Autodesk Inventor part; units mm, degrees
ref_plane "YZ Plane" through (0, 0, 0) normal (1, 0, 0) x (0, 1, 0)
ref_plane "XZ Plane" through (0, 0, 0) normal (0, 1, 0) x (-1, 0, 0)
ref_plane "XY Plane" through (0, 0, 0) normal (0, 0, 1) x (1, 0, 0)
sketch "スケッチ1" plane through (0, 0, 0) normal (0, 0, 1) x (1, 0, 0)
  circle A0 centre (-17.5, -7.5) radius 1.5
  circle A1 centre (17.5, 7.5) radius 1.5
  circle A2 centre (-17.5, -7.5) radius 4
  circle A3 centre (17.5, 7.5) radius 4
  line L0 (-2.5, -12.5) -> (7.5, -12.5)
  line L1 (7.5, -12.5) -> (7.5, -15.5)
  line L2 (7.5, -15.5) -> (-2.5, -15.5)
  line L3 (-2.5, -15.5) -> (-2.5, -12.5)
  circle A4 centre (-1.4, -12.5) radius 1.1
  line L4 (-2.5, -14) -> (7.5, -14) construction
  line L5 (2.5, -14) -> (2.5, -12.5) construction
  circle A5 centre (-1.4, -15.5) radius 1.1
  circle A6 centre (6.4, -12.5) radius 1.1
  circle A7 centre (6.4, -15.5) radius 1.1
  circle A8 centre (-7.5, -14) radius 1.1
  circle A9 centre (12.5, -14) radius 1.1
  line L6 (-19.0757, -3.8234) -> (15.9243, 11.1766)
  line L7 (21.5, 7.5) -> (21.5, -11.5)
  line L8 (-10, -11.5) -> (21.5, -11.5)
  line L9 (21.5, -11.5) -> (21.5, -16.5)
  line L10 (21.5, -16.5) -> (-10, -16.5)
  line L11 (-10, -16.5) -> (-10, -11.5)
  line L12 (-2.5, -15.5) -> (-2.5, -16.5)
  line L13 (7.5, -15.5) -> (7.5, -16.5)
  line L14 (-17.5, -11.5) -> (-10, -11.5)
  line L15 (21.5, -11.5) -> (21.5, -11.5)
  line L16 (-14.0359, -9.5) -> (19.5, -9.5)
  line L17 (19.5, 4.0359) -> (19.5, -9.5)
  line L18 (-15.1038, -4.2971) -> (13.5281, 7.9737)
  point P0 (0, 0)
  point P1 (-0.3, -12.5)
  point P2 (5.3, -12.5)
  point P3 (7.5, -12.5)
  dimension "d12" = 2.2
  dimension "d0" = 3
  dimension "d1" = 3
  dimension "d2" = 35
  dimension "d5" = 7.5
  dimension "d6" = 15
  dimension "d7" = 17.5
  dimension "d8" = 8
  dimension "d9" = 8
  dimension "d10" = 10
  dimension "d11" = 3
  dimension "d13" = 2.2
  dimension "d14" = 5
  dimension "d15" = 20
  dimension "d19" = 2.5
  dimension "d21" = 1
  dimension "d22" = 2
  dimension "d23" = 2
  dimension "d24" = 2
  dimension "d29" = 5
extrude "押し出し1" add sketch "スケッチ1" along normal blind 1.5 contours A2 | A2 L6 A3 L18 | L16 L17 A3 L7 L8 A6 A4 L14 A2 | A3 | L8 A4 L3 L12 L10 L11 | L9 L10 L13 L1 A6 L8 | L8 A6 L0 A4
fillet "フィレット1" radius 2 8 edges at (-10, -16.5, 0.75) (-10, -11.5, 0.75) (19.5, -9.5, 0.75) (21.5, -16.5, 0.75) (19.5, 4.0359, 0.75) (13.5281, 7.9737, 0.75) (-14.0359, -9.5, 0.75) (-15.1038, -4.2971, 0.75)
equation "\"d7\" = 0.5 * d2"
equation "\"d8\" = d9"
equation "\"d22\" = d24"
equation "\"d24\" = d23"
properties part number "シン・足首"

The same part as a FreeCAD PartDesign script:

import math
import FreeCAD as App
import Part
import Sketcher
Q = App.Units.Quantity


def edges_at(feature, points):
    """Names of the edges that pass closest to the given points."""
    edges = feature.Shape.Edges
    near = lambda p: min(range(len(edges)), key=lambda i: edges[i].distToShape(Part.Vertex(*p))[0])
    return sorted({f"Edge{near(p) + 1}" for p in points})

doc = App.newDocument("Part")
body = doc.addObject("PartDesign::Body", "Body")

sketch1 = body.newObject("Sketcher::SketchObject", "Sketch")
sketch1.AttachmentSupport = (doc.getObject("XY_Plane"), [""])
sketch1.MapMode = "FlatFace"
sketch1.addGeometry(Part.ArcOfCircle(Part.Circle(App.Vector(-17.5, -7.5, 0), App.Vector(0, 0, 1), 4), math.radians(113), math.radians(270)), False)
sketch1.addGeometry(Part.LineSegment(App.Vector(-17.5, -11.5, 0), App.Vector(-10, -11.5, 0)), False)
sketch1.addGeometry(Part.LineSegment(App.Vector(-10, -11.5, 0), App.Vector(-10, -16.5, 0)), False)
sketch1.addGeometry(Part.LineSegment(App.Vector(-10, -16.5, 0), App.Vector(-2.5, -16.5, 0)), False)
sketch1.addGeometry(Part.LineSegment(App.Vector(-2.5, -16.5, 0), App.Vector(-2.5, -12.5, 0)), False)
sketch1.addGeometry(Part.ArcOfCircle(Part.Circle(App.Vector(-1.4, -12.5, 0), App.Vector(0, 0, 1), 1.1), math.radians(0), math.radians(180)), False)
sketch1.addGeometry(Part.LineSegment(App.Vector(-0.3, -12.5, 0), App.Vector(5.3, -12.5, 0)), False)
sketch1.addGeometry(Part.ArcOfCircle(Part.Circle(App.Vector(6.4, -12.5, 0), App.Vector(0, 0, 1), 1.1), math.radians(0), math.radians(180)), False)
sketch1.addGeometry(Part.LineSegment(App.Vector(7.5, -12.5, 0), App.Vector(7.5, -16.5, 0)), False)
sketch1.addGeometry(Part.LineSegment(App.Vector(7.5, -16.5, 0), App.Vector(21.5, -16.5, 0)), False)
sketch1.addGeometry(Part.LineSegment(App.Vector(21.5, -16.5, 0), App.Vector(21.5, 7.5, 0)), False)
sketch1.addGeometry(Part.ArcOfCircle(Part.Circle(App.Vector(17.5, 7.5, 0), App.Vector(0, 0, 1), 4), math.radians(0), math.radians(113)), False)
sketch1.addGeometry(Part.LineSegment(App.Vector(15.9, 11.2, 0), App.Vector(-19.1, -3.8, 0)), False)
sketch1.addGeometry(Part.ArcOfCircle(Part.Circle(App.Vector(-17.5, -7.5, 0), App.Vector(0, 0, 1), 4), math.radians(-30), math.radians(53)), False)
sketch1.addGeometry(Part.LineSegment(App.Vector(-15.1, -4.3, 0), App.Vector(13.5, 8, 0)), False)
sketch1.addGeometry(Part.ArcOfCircle(Part.Circle(App.Vector(17.5, 7.5, 0), App.Vector(0, 0, 1), 4), math.radians(173), math.radians(300)), False)
sketch1.addGeometry(Part.LineSegment(App.Vector(19.5, 4, 0), App.Vector(19.5, -9.5, 0)), False)
sketch1.addGeometry(Part.LineSegment(App.Vector(19.5, -9.5, 0), App.Vector(-14, -9.5, 0)), False)
sketch1.addGeometry(Part.Circle(App.Vector(-17.5, -7.5, 0), App.Vector(0, 0, 1), 1.5), False)
sketch1.addGeometry(Part.Circle(App.Vector(17.5, 7.5, 0), App.Vector(0, 0, 1), 1.5), False)
sketch1.addGeometry(Part.Circle(App.Vector(12.5, -14, 0), App.Vector(0, 0, 1), 1.1), False)
sketch1.addGeometry(Part.Circle(App.Vector(-7.5, -14, 0), App.Vector(0, 0, 1), 1.1), False)
sketch1.addConstraint(Sketcher.Constraint("Tangent", 0, 2, 1, 1))
sketch1.addConstraint(Sketcher.Constraint("Coincident", 1, 2, 2, 1))
sketch1.addConstraint(Sketcher.Constraint("Coincident", 2, 2, 3, 1))
sketch1.addConstraint(Sketcher.Constraint("Coincident", 3, 2, 4, 1))
sketch1.addConstraint(Sketcher.Constraint("Tangent", 4, 2, 5, 2))
sketch1.addConstraint(Sketcher.Constraint("Coincident", 5, 1, 6, 1))
sketch1.addConstraint(Sketcher.Constraint("Coincident", 6, 2, 7, 2))
sketch1.addConstraint(Sketcher.Constraint("Tangent", 7, 1, 8, 1))
sketch1.addConstraint(Sketcher.Constraint("Coincident", 8, 2, 9, 1))
sketch1.addConstraint(Sketcher.Constraint("Coincident", 9, 2, 10, 1))
sketch1.addConstraint(Sketcher.Constraint("Tangent", 10, 2, 11, 1))
sketch1.addConstraint(Sketcher.Constraint("Tangent", 11, 2, 12, 1))
sketch1.addConstraint(Sketcher.Constraint("Tangent", 12, 2, 0, 1))
sketch1.addConstraint(Sketcher.Constraint("Coincident", 13, 2, 14, 1))
sketch1.addConstraint(Sketcher.Constraint("Coincident", 14, 2, 15, 1))
sketch1.addConstraint(Sketcher.Constraint("Coincident", 15, 2, 16, 1))
sketch1.addConstraint(Sketcher.Constraint("Coincident", 16, 2, 17, 1))
sketch1.addConstraint(Sketcher.Constraint("Coincident", 17, 2, 13, 1))
sketch1.addConstraint(Sketcher.Constraint("Horizontal", 1))
sketch1.addConstraint(Sketcher.Constraint("Vertical", 2))
sketch1.addConstraint(Sketcher.Constraint("Horizontal", 3))
sketch1.addConstraint(Sketcher.Constraint("Vertical", 4))
sketch1.addConstraint(Sketcher.Constraint("Horizontal", 6))
sketch1.addConstraint(Sketcher.Constraint("Vertical", 8))
sketch1.addConstraint(Sketcher.Constraint("Horizontal", 9))
sketch1.addConstraint(Sketcher.Constraint("Vertical", 10))
sketch1.addConstraint(Sketcher.Constraint("Vertical", 16))
sketch1.addConstraint(Sketcher.Constraint("Horizontal", 17))
sketch1.addConstraint(Sketcher.Constraint("Coincident", 13, 3, 0, 3))
sketch1.addConstraint(Sketcher.Constraint("Coincident", 15, 3, 11, 3))
sketch1.addConstraint(Sketcher.Constraint("Coincident", 18, 3, 0, 3))
sketch1.addConstraint(Sketcher.Constraint("Coincident", 19, 3, 11, 3))
sketch1.addConstraint(Sketcher.Constraint("Equal", 5, 7))
sketch1.addConstraint(Sketcher.Constraint("Equal", 0, 11))
sketch1.addConstraint(Sketcher.Constraint("Equal", 11, 13))
sketch1.addConstraint(Sketcher.Constraint("Equal", 13, 15))
sketch1.addConstraint(Sketcher.Constraint("Equal", 18, 19))
sketch1.addConstraint(Sketcher.Constraint("Equal", 7, 20))
sketch1.addConstraint(Sketcher.Constraint("Equal", 20, 21))
sketch1.addConstraint(Sketcher.Constraint("Symmetric", 0, 3, 11, 3, -1, 1))
sketch1.addConstraint(Sketcher.Constraint("Parallel", 12, 14))
sketch1.addConstraint(Sketcher.Constraint("Horizontal", 5, 3, 7, 3))
sketch1.addConstraint(Sketcher.Constraint("Horizontal", 20, 3, 21, 3))
sketch1.addConstraint(Sketcher.Constraint("Horizontal", 4, 2, 5, 1))
sketch1.addConstraint(Sketcher.Constraint("Horizontal", 3, 2, 8, 2))
sketch1.addConstraint(Sketcher.Constraint("Equal", 1, 3))
sketch1.addConstraint(Sketcher.Constraint("Diameter", 18, Q("3 mm")))
sketch1.addConstraint(Sketcher.Constraint("Radius", 0, Q("4 mm")))
sketch1.addConstraint(Sketcher.Constraint("Diameter", 20, Q("2.2 mm")))
sketch1.addConstraint(Sketcher.Constraint("DistanceY", 2, 2, 2, 1, Q("5 mm")))
sketch1.addConstraint(Sketcher.Constraint("DistanceX", 1, 1, 1, 2, Q("7.5 mm")))
sketch1.addConstraint(Sketcher.Constraint("DistanceX", 1, 2, -1, 1, Q("10 mm")))
sketch1.addConstraint(Sketcher.Constraint("DistanceY", 5, 3, 0, 3, Q("5 mm")))
sketch1.addConstraint(Sketcher.Constraint("DistanceY", 7, 3, 11, 3, Q("20 mm")))
sketch1.addConstraint(Sketcher.Constraint("DistanceX", 20, 3, 11, 3, Q("5 mm")))
sketch1.addConstraint(Sketcher.Constraint("DistanceX", 0, 3, 21, 3, Q("10 mm")))
sketch1.addConstraint(Sketcher.Constraint("DistanceX", 7, 1, 20, 3, Q("5 mm")))
sketch1.addConstraint(Sketcher.Constraint("DistanceX", 15, 2, 10, 2, Q("2 mm")))
sketch1.addConstraint(Sketcher.Constraint("DistanceY", 7, 1, 16, 2, Q("3 mm")))
sketch1.addConstraint(Sketcher.Constraint("DistanceY", 21, 3, 0, 2, Q("2.5 mm")))
sketch1.addConstraint(Sketcher.Constraint("DistanceX", -1, 1, 14, 2, Q("13.528 mm")))
pad1 = body.newObject("PartDesign::Pad", "Pad")
pad1.Profile = sketch1
pad1.Length = 1.5
doc.recompute()

fillet = body.newObject("PartDesign::Fillet", "Fillet")
fillet.Base = (pad1, edges_at(pad1, [
    (-10, -16.5, 0.75),
    (-10, -11.5, 0.75),
    (19.5, -9.5, 0.75),
    (21.5, -16.5, 0.75),
    (19.5, 4.036, 0.75),
    (13.528, 7.974, 0.75),
    (-14.036, -9.5, 0.75),
    (-15.104, -4.297, 0.75),
]))
fillet.Radius = 2

doc.recompute()
